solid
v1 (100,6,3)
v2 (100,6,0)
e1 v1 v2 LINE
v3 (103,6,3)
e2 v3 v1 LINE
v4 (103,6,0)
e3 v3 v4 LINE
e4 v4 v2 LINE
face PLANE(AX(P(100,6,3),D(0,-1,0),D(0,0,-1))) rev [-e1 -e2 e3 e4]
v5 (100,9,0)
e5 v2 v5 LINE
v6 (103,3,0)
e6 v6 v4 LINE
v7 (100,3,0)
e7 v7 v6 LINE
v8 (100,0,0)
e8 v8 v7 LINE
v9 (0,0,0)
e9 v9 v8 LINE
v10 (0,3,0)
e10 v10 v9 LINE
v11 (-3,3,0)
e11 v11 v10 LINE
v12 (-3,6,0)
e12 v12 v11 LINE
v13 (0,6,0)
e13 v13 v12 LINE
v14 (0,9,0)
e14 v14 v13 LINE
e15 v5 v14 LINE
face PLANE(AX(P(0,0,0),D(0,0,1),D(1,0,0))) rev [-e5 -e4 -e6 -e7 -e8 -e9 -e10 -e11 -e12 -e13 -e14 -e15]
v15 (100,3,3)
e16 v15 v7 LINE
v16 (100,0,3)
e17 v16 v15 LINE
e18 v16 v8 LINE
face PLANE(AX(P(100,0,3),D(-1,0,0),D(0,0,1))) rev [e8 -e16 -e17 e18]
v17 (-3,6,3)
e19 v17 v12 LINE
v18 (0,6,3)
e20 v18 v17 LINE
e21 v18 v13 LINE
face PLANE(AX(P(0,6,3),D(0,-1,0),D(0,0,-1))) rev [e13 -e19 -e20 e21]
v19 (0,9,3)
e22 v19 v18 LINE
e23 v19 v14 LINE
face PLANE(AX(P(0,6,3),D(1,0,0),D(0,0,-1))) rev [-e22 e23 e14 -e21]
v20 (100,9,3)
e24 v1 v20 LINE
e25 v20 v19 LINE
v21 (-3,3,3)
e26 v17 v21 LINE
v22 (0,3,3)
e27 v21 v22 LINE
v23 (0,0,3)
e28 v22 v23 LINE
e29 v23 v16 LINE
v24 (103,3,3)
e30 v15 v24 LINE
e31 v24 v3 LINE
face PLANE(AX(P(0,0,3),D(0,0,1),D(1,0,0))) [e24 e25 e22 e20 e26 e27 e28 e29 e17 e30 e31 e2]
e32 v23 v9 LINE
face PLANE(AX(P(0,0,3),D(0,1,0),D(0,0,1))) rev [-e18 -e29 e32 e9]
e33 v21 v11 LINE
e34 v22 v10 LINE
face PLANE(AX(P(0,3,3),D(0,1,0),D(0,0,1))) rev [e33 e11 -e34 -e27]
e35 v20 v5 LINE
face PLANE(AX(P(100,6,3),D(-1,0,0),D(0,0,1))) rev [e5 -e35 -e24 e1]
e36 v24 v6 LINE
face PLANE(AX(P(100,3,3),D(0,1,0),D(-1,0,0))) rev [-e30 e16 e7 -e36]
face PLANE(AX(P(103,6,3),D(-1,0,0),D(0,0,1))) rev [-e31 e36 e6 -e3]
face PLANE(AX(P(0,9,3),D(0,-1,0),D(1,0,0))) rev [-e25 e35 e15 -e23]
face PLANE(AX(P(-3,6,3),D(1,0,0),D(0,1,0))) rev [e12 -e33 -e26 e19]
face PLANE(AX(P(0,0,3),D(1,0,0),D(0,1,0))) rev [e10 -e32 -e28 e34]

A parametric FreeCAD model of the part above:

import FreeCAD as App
import Part
import Sketcher
from FreeCAD import Vector

doc = App.newDocument("Part")
body = doc.addObject("PartDesign::Body", "Body")

# Sketch on XY plane
sketch1 = body.newObject("Sketcher::SketchObject", "Sketch")
sketch1.AttachmentSupport = (doc.getObject("XY_Plane"), [""])
sketch1.MapMode = "FlatFace"
sketch1.addGeometry(Part.LineSegment(Vector(0, 0, 0), Vector(100, 0, 0)), False)
sketch1.addGeometry(Part.LineSegment(Vector(100, 0, 0), Vector(100, 3, 0)), False)
sketch1.addGeometry(Part.LineSegment(Vector(100, 3, 0), Vector(103, 3, 0)), False)
sketch1.addGeometry(Part.LineSegment(Vector(103, 3, 0), Vector(103, 6, 0)), False)
sketch1.addGeometry(Part.LineSegment(Vector(103, 6, 0), Vector(100, 6, 0)), False)
sketch1.addGeometry(Part.LineSegment(Vector(100, 6, 0), Vector(100, 9, 0)), False)
sketch1.addGeometry(Part.LineSegment(Vector(100, 9, 0), Vector(0, 9, 0)), False)
sketch1.addGeometry(Part.LineSegment(Vector(0, 9, 0), Vector(0, 6, 0)), False)
sketch1.addGeometry(Part.LineSegment(Vector(0, 6, 0), Vector(-3, 6, 0)), False)
sketch1.addGeometry(Part.LineSegment(Vector(-3, 6, 0), Vector(-3, 3, 0)), False)
sketch1.addGeometry(Part.LineSegment(Vector(-3, 3, 0), Vector(0, 3, 0)), False)
sketch1.addGeometry(Part.LineSegment(Vector(0, 3, 0), Vector(0, 0, 0)), False)
sketch1.addConstraint(Sketcher.Constraint("Coincident", 0, 2, 1, 1))
sketch1.addConstraint(Sketcher.Constraint("Coincident", 1, 2, 2, 1))
sketch1.addConstraint(Sketcher.Constraint("Coincident", 2, 2, 3, 1))
sketch1.addConstraint(Sketcher.Constraint("Coincident", 3, 2, 4, 1))
sketch1.addConstraint(Sketcher.Constraint("Coincident", 4, 2, 5, 1))
sketch1.addConstraint(Sketcher.Constraint("Coincident", 5, 2, 6, 1))
sketch1.addConstraint(Sketcher.Constraint("Coincident", 6, 2, 7, 1))
sketch1.addConstraint(Sketcher.Constraint("Coincident", 7, 2, 8, 1))
sketch1.addConstraint(Sketcher.Constraint("Coincident", 8, 2, 9, 1))
sketch1.addConstraint(Sketcher.Constraint("Coincident", 9, 2, 10, 1))
sketch1.addConstraint(Sketcher.Constraint("Coincident", 10, 2, 11, 1))
sketch1.addConstraint(Sketcher.Constraint("Coincident", 11, 2, 0, 1))
sketch1.addConstraint(Sketcher.Constraint("Horizontal", 0))
sketch1.addConstraint(Sketcher.Constraint("Vertical", 1))
sketch1.addConstraint(Sketcher.Constraint("Horizontal", 2))
sketch1.addConstraint(Sketcher.Constraint("Vertical", 3))
sketch1.addConstraint(Sketcher.Constraint("Horizontal", 4))
sketch1.addConstraint(Sketcher.Constraint("Vertical", 5))
sketch1.addConstraint(Sketcher.Constraint("Horizontal", 6))
sketch1.addConstraint(Sketcher.Constraint("Vertical", 7))
sketch1.addConstraint(Sketcher.Constraint("Horizontal", 8))
sketch1.addConstraint(Sketcher.Constraint("Vertical", 9))
sketch1.addConstraint(Sketcher.Constraint("Horizontal", 10))
sketch1.addConstraint(Sketcher.Constraint("Vertical", 11))
sketch1.addConstraint(Sketcher.Constraint("Coincident", 11, 2, -1, 1))
sketch1.addConstraint(Sketcher.Constraint("PointOnObject", 6, 2, -2))
sketch1.addConstraint(Sketcher.Constraint("Horizontal", 4, 2, 7, 2))
sketch1.addConstraint(Sketcher.Constraint("Horizontal", 2, 2, 9, 2))
sketch1.addConstraint(Sketcher.Constraint("Vertical", 1, 2, 4, 2))
sketch1.addConstraint(Sketcher.Constraint("Equal", 4, 8))
sketch1.addConstraint(Sketcher.Constraint("Equal", 10, 1))
sketch1.addConstraint(Sketcher.Constraint("Equal", 1, 3))
sketch1.addConstraint(Sketcher.Constraint("Equal", 3, 5))
sketch1.addConstraint(Sketcher.Constraint("DistanceX", 0, 1, 0, 2, 100.0))
sketch1.addConstraint(Sketcher.Constraint("DistanceX", 2, 1, 2, 2, 3.0))
pad1 = body.newObject("PartDesign::Pad", "Pad")
pad1.Profile = sketch1
pad1.Length = 3

doc.recompute()
